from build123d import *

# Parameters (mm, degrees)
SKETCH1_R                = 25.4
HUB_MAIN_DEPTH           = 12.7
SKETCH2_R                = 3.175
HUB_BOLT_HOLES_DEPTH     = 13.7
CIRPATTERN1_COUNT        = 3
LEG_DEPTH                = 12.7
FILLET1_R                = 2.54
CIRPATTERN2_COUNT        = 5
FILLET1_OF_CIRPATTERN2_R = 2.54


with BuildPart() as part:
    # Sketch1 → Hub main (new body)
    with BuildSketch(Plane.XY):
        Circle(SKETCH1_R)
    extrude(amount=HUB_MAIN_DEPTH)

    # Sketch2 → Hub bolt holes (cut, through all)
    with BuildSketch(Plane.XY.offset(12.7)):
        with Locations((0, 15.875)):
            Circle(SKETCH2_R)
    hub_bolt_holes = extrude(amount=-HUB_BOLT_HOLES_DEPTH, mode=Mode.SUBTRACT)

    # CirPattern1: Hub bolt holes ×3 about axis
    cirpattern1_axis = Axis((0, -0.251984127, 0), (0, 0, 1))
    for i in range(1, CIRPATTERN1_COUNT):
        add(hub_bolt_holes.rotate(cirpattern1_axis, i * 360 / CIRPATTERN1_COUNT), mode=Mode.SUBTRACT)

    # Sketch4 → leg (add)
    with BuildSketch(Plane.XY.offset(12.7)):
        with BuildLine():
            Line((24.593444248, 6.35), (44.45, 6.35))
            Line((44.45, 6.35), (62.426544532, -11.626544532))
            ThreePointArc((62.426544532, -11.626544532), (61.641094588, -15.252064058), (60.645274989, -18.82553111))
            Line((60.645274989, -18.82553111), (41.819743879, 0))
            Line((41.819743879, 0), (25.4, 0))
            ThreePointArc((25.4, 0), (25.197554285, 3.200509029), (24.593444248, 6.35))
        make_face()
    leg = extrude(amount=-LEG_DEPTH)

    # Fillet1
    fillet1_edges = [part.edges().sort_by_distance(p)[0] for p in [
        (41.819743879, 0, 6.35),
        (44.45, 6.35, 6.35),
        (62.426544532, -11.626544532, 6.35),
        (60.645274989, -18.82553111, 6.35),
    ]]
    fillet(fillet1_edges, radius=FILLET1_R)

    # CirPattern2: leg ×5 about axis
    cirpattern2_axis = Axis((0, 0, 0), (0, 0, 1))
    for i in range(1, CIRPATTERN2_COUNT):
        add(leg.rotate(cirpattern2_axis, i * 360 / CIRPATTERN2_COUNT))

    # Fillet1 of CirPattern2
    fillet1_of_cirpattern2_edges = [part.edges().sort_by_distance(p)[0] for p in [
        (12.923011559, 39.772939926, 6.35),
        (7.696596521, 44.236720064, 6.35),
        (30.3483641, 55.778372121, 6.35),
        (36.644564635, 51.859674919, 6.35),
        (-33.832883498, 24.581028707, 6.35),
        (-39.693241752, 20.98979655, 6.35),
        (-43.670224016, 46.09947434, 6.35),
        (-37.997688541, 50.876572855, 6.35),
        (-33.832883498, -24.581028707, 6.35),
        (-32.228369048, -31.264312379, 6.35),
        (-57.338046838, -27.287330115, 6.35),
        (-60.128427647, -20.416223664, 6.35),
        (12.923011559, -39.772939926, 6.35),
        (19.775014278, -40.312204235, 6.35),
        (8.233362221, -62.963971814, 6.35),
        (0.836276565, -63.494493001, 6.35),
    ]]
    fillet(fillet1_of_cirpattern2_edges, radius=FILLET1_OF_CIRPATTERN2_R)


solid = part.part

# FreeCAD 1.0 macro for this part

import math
import FreeCAD as App
import Part
import Sketcher

V = App.Vector
Q = App.Units.Quantity


def edges_at(feature, points):
    """Names of the edges that pass closest to the given points."""
    edges = feature.Shape.Edges
    near = lambda p: min(range(len(edges)), key=lambda i: edges[i].distToShape(Part.Vertex(*p))[0])
    return sorted({f"Edge{near(p) + 1}" for p in points})

doc = App.newDocument("Part")
body = doc.addObject("PartDesign::Body", "Body")

# Sketch on XY plane
sketch1 = body.newObject("Sketcher::SketchObject", "Sketch")
sketch1.AttachmentSupport = (doc.getObject("XY_Plane"), [""])
sketch1.MapMode = "FlatFace"
sketch1.addGeometry(Part.Circle(V(0, 0, 0), V(0, 0, 1), 25), False)
sketch1.addConstraint([
    Sketcher.Constraint("Coincident", 0, 3, -1, 1),
    Sketcher.Constraint("Diameter", 0, Q("2 in")),
])
pad1 = body.newObject("PartDesign::Pad", "Pad")
pad1.Profile = sketch1
pad1.Length = Q("0.5 in")

# Sketch on XY plane
sketch2 = body.newObject("Sketcher::SketchObject", "Sketch001")
sketch2.AttachmentSupport = (doc.getObject("XY_Plane"), [""])
sketch2.MapMode = "FlatFace"
sketch2.AttachmentOffset = App.Placement(V(0, 0, 0.5 * 25.4), App.Rotation())
sketch2.addGeometry(Part.Circle(V(0, 15.9, 0), V(0, 0, 1), 3.2), False)
sketch2.addConstraint([
    Sketcher.Constraint("PointOnObject", 0, 3, -2),
    Sketcher.Constraint("Diameter", 0, Q("0.25 in")),
    Sketcher.Constraint("DistanceY", -1, 1, 0, 3, Q("0.625 in")),
])
pocket1 = body.newObject("PartDesign::Pocket", "Pocket")
pocket1.Profile = sketch2
pocket1.Type = "ThroughAll"
doc.recompute()

datumline = body.newObject("PartDesign::Line", "DatumLine")
datumline.Placement = App.Placement(V(0, -0.251984, 0), App.Rotation(V(0, 0, 1), V(0, 0, 1)))
polarpattern = body.newObject("PartDesign::PolarPattern", "PolarPattern")
polarpattern.Originals = [pocket1]
polarpattern.Axis = (datumline, [""])
polarpattern.Angle = 360
polarpattern.Occurrences = 3
body.Tip = polarpattern

# Sketch on XY plane
sketch3 = body.newObject("Sketcher::SketchObject", "Sketch002")
sketch3.AttachmentSupport = (doc.getObject("XY_Plane"), [""])
sketch3.MapMode = "FlatFace"
sketch3.AttachmentOffset = App.Placement(V(0, 0, 0.5 * 25.4), App.Rotation())
sketch3.addGeometry([
    Part.LineSegment(V(44, 6, 0), V(25, 6, 0)),  # 0
    Part.ArcOfCircle(Part.Circle(V(0, 0, 0), V(0, 0, 1), 25), math.radians(0), math.radians(14.48)),  # 1
    Part.LineSegment(V(25, 0, 0), V(42, 0, 0)),  # 2
    Part.LineSegment(V(42, 0, 0), V(61, -19, 0)),  # 3
    Part.ArcOfCircle(Part.Circle(V(0, 0, 0), V(0, 0, 1), 63), math.radians(-17.25), math.radians(-10.55)),  # 4
    Part.LineSegment(V(62, -12, 0), V(44, 6, 0)),  # 5
], False)
sketch3.addConstraint([
    Sketcher.Constraint("Coincident", 0, 2, 1, 2),
    Sketcher.Constraint("Coincident", 1, 1, 2, 1),
    Sketcher.Constraint("Coincident", 2, 2, 3, 1),
    Sketcher.Constraint("Coincident", 3, 2, 4, 1),
    Sketcher.Constraint("Coincident", 4, 2, 5, 1),
    Sketcher.Constraint("Coincident", 5, 2, 0, 1),
    Sketcher.Constraint("Horizontal", 0),
    Sketcher.Constraint("Horizontal", 2),
    Sketcher.Constraint("Coincident", 1, 3, -1, 1),
    Sketcher.Constraint("Coincident", 4, 3, -1, 1),
    Sketcher.Constraint("PointOnObject", 1, 1, -1),
    Sketcher.Constraint("Parallel", 3, 5),
    Sketcher.Constraint("Radius", 1, Q("1 in")),
    Sketcher.Constraint("Radius", 4, Q("2.5 in")),
    Sketcher.Constraint("Angle", 3, Q("-45 deg")),
    Sketcher.Constraint("DistanceY", -1, 1, 0, 2, Q("0.25 in")),
    Sketcher.Constraint("DistanceX", -1, 1, 5, 2, Q("1.75 in")),
    Sketcher.Constraint("DistanceX", 0, 2, 2, 2, Q("17.2263 mm")),
])
pad2 = body.newObject("PartDesign::Pad", "Pad001")
pad2.Profile = sketch3
pad2.Length = Q("0.5 in")
pad2.Reversed = True
doc.recompute()

fillet = body.newObject("PartDesign::Fillet", "Fillet")
fillet.Base = (pad2, edges_at(pad2, [
    (41.82, 0, 6.35),
    (44.45, 6.35, 6.35),
    (62.427, -11.627, 6.35),
    (60.645, -18.826, 6.35),
]))
fillet.Radius = Q("0.1 in")
doc.recompute()

polarpattern2 = body.newObject("PartDesign::PolarPattern", "PolarPattern001")
polarpattern2.Originals = [pad2]
polarpattern2.Axis = (doc.getObject("Z_Axis"), [""])
polarpattern2.Angle = 360
polarpattern2.Occurrences = 5
body.Tip = polarpattern2
doc.recompute()

fillet2 = body.newObject("PartDesign::Fillet", "Fillet001")
fillet2.Base = (polarpattern2, edges_at(polarpattern2, [
    (12.923, 39.773, 6.35),
    (7.697, 44.237, 6.35),
    (30.348, 55.778, 6.35),
    (36.645, 51.86, 6.35),
    (-33.833, 24.581, 6.35),
    (-39.693, 20.99, 6.35),
    (-43.67, 46.099, 6.35),
    (-37.998, 50.877, 6.35),
    (-33.833, -24.581, 6.35),
    (-32.228, -31.264, 6.35),
    (-57.338, -27.287, 6.35),
    (-60.128, -20.416, 6.35),
    (12.923, -39.773, 6.35),
    (19.775, -40.312, 6.35),
    (8.233, -62.964, 6.35),
    (0.836, -63.494, 6.35),
]))
fillet2.Radius = Q("0.1 in")

doc.recompute()
